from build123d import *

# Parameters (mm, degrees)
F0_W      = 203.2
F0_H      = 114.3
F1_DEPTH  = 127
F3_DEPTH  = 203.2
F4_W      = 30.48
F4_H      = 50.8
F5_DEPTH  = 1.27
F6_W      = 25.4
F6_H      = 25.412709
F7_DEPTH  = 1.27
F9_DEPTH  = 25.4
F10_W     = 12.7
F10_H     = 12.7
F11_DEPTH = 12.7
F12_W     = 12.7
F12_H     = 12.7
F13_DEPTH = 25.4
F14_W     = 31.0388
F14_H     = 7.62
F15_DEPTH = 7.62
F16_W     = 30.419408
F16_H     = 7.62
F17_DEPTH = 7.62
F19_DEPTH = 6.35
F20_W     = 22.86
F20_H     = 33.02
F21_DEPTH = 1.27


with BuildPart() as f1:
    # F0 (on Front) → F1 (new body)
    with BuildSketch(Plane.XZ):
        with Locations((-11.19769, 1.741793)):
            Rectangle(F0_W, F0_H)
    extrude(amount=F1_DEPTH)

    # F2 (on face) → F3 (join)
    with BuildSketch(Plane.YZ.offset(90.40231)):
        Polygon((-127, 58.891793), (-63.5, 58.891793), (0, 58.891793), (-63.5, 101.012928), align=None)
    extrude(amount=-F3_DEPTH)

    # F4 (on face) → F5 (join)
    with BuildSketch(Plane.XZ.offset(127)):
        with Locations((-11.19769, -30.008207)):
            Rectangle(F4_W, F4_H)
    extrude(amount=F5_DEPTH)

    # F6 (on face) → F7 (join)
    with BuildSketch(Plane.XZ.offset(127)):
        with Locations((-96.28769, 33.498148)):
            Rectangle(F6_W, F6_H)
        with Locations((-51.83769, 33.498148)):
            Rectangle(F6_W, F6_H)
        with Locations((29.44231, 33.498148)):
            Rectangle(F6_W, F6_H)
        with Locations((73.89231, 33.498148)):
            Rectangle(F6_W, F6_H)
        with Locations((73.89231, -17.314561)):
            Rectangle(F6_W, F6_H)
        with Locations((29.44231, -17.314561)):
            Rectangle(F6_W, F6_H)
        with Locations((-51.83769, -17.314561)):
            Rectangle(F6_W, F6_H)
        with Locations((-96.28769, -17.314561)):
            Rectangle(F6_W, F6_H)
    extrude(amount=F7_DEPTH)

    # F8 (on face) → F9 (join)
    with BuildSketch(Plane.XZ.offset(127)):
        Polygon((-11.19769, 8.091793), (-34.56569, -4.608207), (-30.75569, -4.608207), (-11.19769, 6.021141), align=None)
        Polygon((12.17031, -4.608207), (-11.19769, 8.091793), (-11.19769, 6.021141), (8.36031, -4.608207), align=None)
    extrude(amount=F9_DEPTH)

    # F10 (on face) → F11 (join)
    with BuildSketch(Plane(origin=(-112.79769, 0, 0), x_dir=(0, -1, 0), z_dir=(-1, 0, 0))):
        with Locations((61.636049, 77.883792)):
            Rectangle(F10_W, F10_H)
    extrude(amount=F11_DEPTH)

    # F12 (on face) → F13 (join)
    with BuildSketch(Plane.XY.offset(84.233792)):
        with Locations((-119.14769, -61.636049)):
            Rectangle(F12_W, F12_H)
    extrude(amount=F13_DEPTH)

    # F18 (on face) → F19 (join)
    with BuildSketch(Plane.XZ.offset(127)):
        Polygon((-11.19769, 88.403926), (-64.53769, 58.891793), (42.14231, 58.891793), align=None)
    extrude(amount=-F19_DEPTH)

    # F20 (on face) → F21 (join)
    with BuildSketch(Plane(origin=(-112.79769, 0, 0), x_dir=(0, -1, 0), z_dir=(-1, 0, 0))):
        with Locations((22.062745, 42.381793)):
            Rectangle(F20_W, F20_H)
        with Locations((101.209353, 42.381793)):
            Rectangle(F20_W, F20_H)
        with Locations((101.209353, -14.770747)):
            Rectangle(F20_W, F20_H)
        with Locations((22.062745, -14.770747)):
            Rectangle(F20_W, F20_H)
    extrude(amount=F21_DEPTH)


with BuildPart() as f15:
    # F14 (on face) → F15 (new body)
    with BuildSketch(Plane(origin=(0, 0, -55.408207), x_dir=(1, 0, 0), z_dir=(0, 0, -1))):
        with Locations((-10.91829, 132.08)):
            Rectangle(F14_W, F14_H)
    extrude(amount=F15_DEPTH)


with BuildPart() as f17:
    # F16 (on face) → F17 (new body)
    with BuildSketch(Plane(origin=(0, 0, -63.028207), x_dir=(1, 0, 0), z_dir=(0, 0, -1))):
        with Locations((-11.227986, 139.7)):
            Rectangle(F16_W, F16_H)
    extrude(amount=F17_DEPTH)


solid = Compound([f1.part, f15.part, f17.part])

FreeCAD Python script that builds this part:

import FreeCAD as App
import Part
import Sketcher

V = App.Vector
Q = App.Units.Quantity


def add_polygon(sketch, points):
    """Adds a closed chain of lines whose ends are joined by coincident constraints."""
    first, n = sketch.GeometryCount, len(points)
    for a, b in zip(points, points[1:] + points[:1]):
        sketch.addGeometry(Part.LineSegment(App.Vector(*a, 0), App.Vector(*b, 0)), False)
    for i in range(n):
        sketch.addConstraint(Sketcher.Constraint("Coincident", first + i, 2, first + (i + 1) % n, 1))

doc = App.newDocument("Part")
body = doc.addObject("PartDesign::Body", "Body")

sketch1 = body.newObject("Sketcher::SketchObject", "Sketch")
sketch1.AttachmentSupport = (doc.getObject("XZ_Plane"), [""])
sketch1.MapMode = "FlatFace"
add_polygon(sketch1, [(-113, 59), (-113, -55), (90, -55), (90, 59)])
sketch1.addConstraint(Sketcher.Constraint("Vertical", 0))
sketch1.addConstraint(Sketcher.Constraint("Horizontal", 1))
sketch1.addConstraint(Sketcher.Constraint("Vertical", 2))
sketch1.addConstraint(Sketcher.Constraint("Horizontal", 3))
sketch1.addConstraint(Sketcher.Constraint("DistanceX", 1, 1, 1, 2, Q("8 in")))
sketch1.addConstraint(Sketcher.Constraint("DistanceY", 0, 2, 0, 1, Q("4.5 in")))
sketch1.addConstraint(Sketcher.Constraint("DistanceX", 0, 2, -1, 1, Q("112.79769 mm")))
sketch1.addConstraint(Sketcher.Constraint("DistanceY", 0, 2, -1, 1, Q("55.408207 mm")))
pad1 = body.newObject("PartDesign::Pad", "Pad")
pad1.Profile = sketch1
pad1.Length = Q("5 in")

sketch2 = body.newObject("Sketcher::SketchObject", "Sketch001")
sketch2.AttachmentSupport = (doc.getObject("YZ_Plane"), [""])
sketch2.MapMode = "FlatFace"
sketch2.AttachmentOffset = App.Placement(V(0, 0, 90.40231), App.Rotation())
add_polygon(sketch2, [(-127, 59), (0, 59), (-64, 101)])
sketch2.addConstraint(Sketcher.Constraint("Horizontal", 0))
sketch2.addConstraint(Sketcher.Constraint("PointOnObject", 0, 2, -2))
sketch2.addConstraint(Sketcher.Constraint("Equal", 1, 2))
sketch2.addConstraint(Sketcher.Constraint("DistanceX", 0, 1, 0, 2, Q("5 in")))
sketch2.addConstraint(Sketcher.Constraint("Distance", 1, Q("3 in")))
sketch2.addConstraint(Sketcher.Constraint("DistanceY", -1, 1, 1, 2, Q("101.012928 mm")))
pad2 = body.newObject("PartDesign::Pad", "Pad001")
pad2.Profile = sketch2
pad2.Length = Q("8 in")
pad2.Reversed = True

sketch3 = body.newObject("Sketcher::SketchObject", "Sketch002")
sketch3.AttachmentSupport = (doc.getObject("XZ_Plane"), [""])
sketch3.MapMode = "FlatFace"
sketch3.AttachmentOffset = App.Placement(V(0, 0, 5 * 25.4), App.Rotation())
add_polygon(sketch3, [(-26, -5), (-26, -55), (4, -55), (4, -5)])
sketch3.addConstraint(Sketcher.Constraint("Vertical", 0))
sketch3.addConstraint(Sketcher.Constraint("Horizontal", 1))
sketch3.addConstraint(Sketcher.Constraint("Vertical", 2))
sketch3.addConstraint(Sketcher.Constraint("Horizontal", 3))
sketch3.addConstraint(Sketcher.Constraint("DistanceY", 0, 2, 0, 1, Q("2 in")))
sketch3.addConstraint(Sketcher.Constraint("DistanceX", 1, 1, 1, 2, Q("1.2 in")))
sketch3.addConstraint(Sketcher.Constraint("DistanceX", 0, 2, -1, 1, Q("26.43769 mm")))
sketch3.addConstraint(Sketcher.Constraint("DistanceY", 0, 2, -1, 1, Q("55.408207 mm")))
pad3 = body.newObject("PartDesign::Pad", "Pad002")
pad3.Profile = sketch3
pad3.Length = Q("0.05 in")

sketch4 = body.newObject("Sketcher::SketchObject", "Sketch003")
sketch4.AttachmentSupport = (doc.getObject("XZ_Plane"), [""])
sketch4.MapMode = "FlatFace"
sketch4.AttachmentOffset = App.Placement(V(0, 0, 5 * 25.4), App.Rotation())
add_polygon(sketch4, [(-109, 46), (-109, 21), (-84, 21), (-84, 46)])
add_polygon(sketch4, [(-65, 46), (-65, 21), (-39, 21), (-39, 46)])
add_polygon(sketch4, [(17, 46), (17, 21), (42, 21), (42, 46)])
add_polygon(sketch4, [(61, 46), (61, 21), (87, 21), (87, 46)])
add_polygon(sketch4, [(61, -5), (61, -30), (87, -30), (87, -5)])
add_polygon(sketch4, [(17, -5), (17, -30), (42, -30), (42, -5)])
add_polygon(sketch4, [(-65, -5), (-65, -30), (-39, -30), (-39, -5)])
add_polygon(sketch4, [(-109, -5), (-109, -30), (-84, -30), (-84, -5)])
sketch4.addConstraint(Sketcher.Constraint("Vertical", 0))
sketch4.addConstraint(Sketcher.Constraint("Horizontal", 1))
sketch4.addConstraint(Sketcher.Constraint("Vertical", 2))
sketch4.addConstraint(Sketcher.Constraint("Horizontal", 3))
sketch4.addConstraint(Sketcher.Constraint("Vertical", 4))
sketch4.addConstraint(Sketcher.Constraint("Horizontal", 5))
sketch4.addConstraint(Sketcher.Constraint("Vertical", 6))
sketch4.addConstraint(Sketcher.Constraint("Horizontal", 7))
sketch4.addConstraint(Sketcher.Constraint("Vertical", 8))
sketch4.addConstraint(Sketcher.Constraint("Horizontal", 9))
sketch4.addConstraint(Sketcher.Constraint("Vertical", 10))
sketch4.addConstraint(Sketcher.Constraint("Horizontal", 11))
sketch4.addConstraint(Sketcher.Constraint("Vertical", 12))
sketch4.addConstraint(Sketcher.Constraint("Horizontal", 13))
sketch4.addConstraint(Sketcher.Constraint("Vertical", 14))
sketch4.addConstraint(Sketcher.Constraint("Horizontal", 15))
sketch4.addConstraint(Sketcher.Constraint("Vertical", 16))
sketch4.addConstraint(Sketcher.Constraint("Horizontal", 17))
sketch4.addConstraint(Sketcher.Constraint("Vertical", 18))
sketch4.addConstraint(Sketcher.Constraint("Horizontal", 19))
sketch4.addConstraint(Sketcher.Constraint("Vertical", 20))
sketch4.addConstraint(Sketcher.Constraint("Horizontal", 21))
sketch4.addConstraint(Sketcher.Constraint("Vertical", 22))
sketch4.addConstraint(Sketcher.Constraint("Horizontal", 23))
sketch4.addConstraint(Sketcher.Constraint("Vertical", 24))
sketch4.addConstraint(Sketcher.Constraint("Horizontal", 25))
sketch4.addConstraint(Sketcher.Constraint("Vertical", 26))
sketch4.addConstraint(Sketcher.Constraint("Horizontal", 27))
sketch4.addConstraint(Sketcher.Constraint("Vertical", 28))
sketch4.addConstraint(Sketcher.Constraint("Horizontal", 29))
sketch4.addConstraint(Sketcher.Constraint("Vertical", 30))
sketch4.addConstraint(Sketcher.Constraint("Horizontal", 31))
sketch4.addConstraint(Sketcher.Constraint("Horizontal", 1, 2, 4, 2))
sketch4.addConstraint(Sketcher.Constraint("Horizontal", 3, 2, 6, 2))
sketch4.addConstraint(Sketcher.Constraint("Horizontal", 5, 2, 8, 2))
sketch4.addConstraint(Sketcher.Constraint("Horizontal", 7, 2, 10, 2))
sketch4.addConstraint(Sketcher.Constraint("Horizontal", 9, 2, 12, 2))
sketch4.addConstraint(Sketcher.Constraint("Horizontal", 11, 2, 14, 2))
sketch4.addConstraint(Sketcher.Constraint("Horizontal", 17, 2, 20, 2))
sketch4.addConstraint(Sketcher.Constraint("Horizontal", 19, 2, 22, 2))
sketch4.addConstraint(Sketcher.Constraint("Horizontal", 21, 2, 24, 2))
sketch4.addConstraint(Sketcher.Constraint("Horizontal", 23, 2, 26, 2))
sketch4.addConstraint(Sketcher.Constraint("Horizontal", 25, 2, 28, 2))
sketch4.addConstraint(Sketcher.Constraint("Horizontal", 27, 2, 30, 2))
sketch4.addConstraint(Sketcher.Constraint("Vertical", 15, 2, 16, 2))
sketch4.addConstraint(Sketcher.Constraint("Vertical", 14, 2, 17, 2))
sketch4.addConstraint(Sketcher.Constraint("Vertical", 11, 2, 20, 2))
sketch4.addConstraint(Sketcher.Constraint("Vertical", 10, 2, 21, 2))
sketch4.addConstraint(Sketcher.Constraint("Vertical", 7, 2, 24, 2))
sketch4.addConstraint(Sketcher.Constraint("Vertical", 6, 2, 25, 2))
sketch4.addConstraint(Sketcher.Constraint("Vertical", 3, 2, 28, 2))
sketch4.addConstraint(Sketcher.Constraint("Vertical", 2, 2, 29, 2))
sketch4.addConstraint(Sketcher.Constraint("Equal", 3, 5))
sketch4.addConstraint(Sketcher.Constraint("Equal", 7, 9))
sketch4.addConstraint(Sketcher.Constraint("Equal", 11, 13))
sketch4.addConstraint(Sketcher.Constraint("Equal", 14, 16))
sketch4.addConstraint(Sketcher.Constraint("DistanceX", 1, 1, 1, 2, Q("1 in")))
sketch4.addConstraint(Sketcher.Constraint("DistanceY", 18, 2, 13, 2, Q("1 in")))
sketch4.addConstraint(Sketcher.Constraint("DistanceX", 5, 2, 8, 2, Q("2.2 in")))
sketch4.addConstraint(Sketcher.Constraint("DistanceX", 1, 2, 4, 2, Q("0.75 in")))
sketch4.addConstraint(Sketcher.Constraint("DistanceX", 9, 2, 12, 2, Q("0.75 in")))
sketch4.addConstraint(Sketcher.Constraint("DistanceY", 0, 2, 0, 1, Q("25.412709 mm")))
sketch4.addConstraint(Sketcher.Constraint("DistanceX", 0, 2, -1, 1, Q("108.98769 mm")))
sketch4.addConstraint(Sketcher.Constraint("DistanceY", -1, 1, 0, 2, Q("20.791794 mm")))
pad4 = body.newObject("PartDesign::Pad", "Pad003")
pad4.Profile = sketch4
pad4.Length = Q("0.05 in")

sketch5 = body.newObject("Sketcher::SketchObject", "Sketch004")
sketch5.AttachmentSupport = (doc.getObject("XZ_Plane"), [""])
sketch5.MapMode = "FlatFace"
sketch5.AttachmentOffset = App.Placement(V(0, 0, 5 * 25.4), App.Rotation())
add_polygon(sketch5, [(-11.2, 8.1), (-34.6, -4.6), (-30.8, -4.6), (-11.2, 6), (8.4, -4.6), (12.2, -4.6)])
sketch5.addConstraint(Sketcher.Constraint("Horizontal", 1))
sketch5.addConstraint(Sketcher.Constraint("Horizontal", 4))
sketch5.addConstraint(Sketcher.Constraint("Parallel", 0, 2))
sketch5.addConstraint(Sketcher.Constraint("Parallel", 3, 5))
sketch5.addConstraint(Sketcher.Constraint("Horizontal", 1, 2, 3, 2))
sketch5.addConstraint(Sketcher.Constraint("Vertical", 2, 2, 5, 2))
sketch5.addConstraint(Sketcher.Constraint("Equal", 1, 4))
sketch5.addConstraint(Sketcher.Constraint("DistanceX", 1, 1, 1, 2, Q("0.15 in")))
sketch5.addConstraint(Sketcher.Constraint("DistanceY", 1, 2, 5, 2, Q("0.5 in")))
sketch5.addConstraint(Sketcher.Constraint("DistanceX", 1, 2, 2, 2, Q("0.77 in")))
sketch5.addConstraint(Sketcher.Constraint("DistanceX", 0, 2, -1, 1, Q("34.56569 mm")))
sketch5.addConstraint(Sketcher.Constraint("DistanceY", -1, 1, 2, 2, Q("6.021141 mm")))
pad5 = body.newObject("PartDesign::Pad", "Pad004")
pad5.Profile = sketch5
pad5.Length = Q("1 in")

sketch6 = body.newObject("Sketcher::SketchObject", "Sketch005")
sketch6.AttachmentSupport = (doc.getObject("YZ_Plane"), [""])
sketch6.MapMode = "FlatFace"
sketch6.AttachmentOffset = App.Placement(V(0, 0, -112.79769), App.Rotation())
add_polygon(sketch6, [(-55, 84), (-55, 72), (-68, 72), (-68, 84)])
sketch6.addConstraint(Sketcher.Constraint("Vertical", 0))
sketch6.addConstraint(Sketcher.Constraint("Horizontal", 1))
sketch6.addConstraint(Sketcher.Constraint("Vertical", 2))
sketch6.addConstraint(Sketcher.Constraint("Horizontal", 3))
sketch6.addConstraint(Sketcher.Constraint("Equal", 3, 0))
sketch6.addConstraint(Sketcher.Constraint("DistanceX", 1, 2, 1, 1, Q("0.5 in")))
sketch6.addConstraint(Sketcher.Constraint("DistanceX", 0, 2, -1, 1, Q("55.286049 mm")))
sketch6.addConstraint(Sketcher.Constraint("DistanceY", -1, 1, 2, 2, Q("84.233792 mm")))
pad6 = body.newObject("PartDesign::Pad", "Pad005")
pad6.Profile = sketch6
pad6.Length = Q("0.5 in")
pad6.Reversed = True

sketch7 = body.newObject("Sketcher::SketchObject", "Sketch006")
sketch7.AttachmentSupport = (doc.getObject("XY_Plane"), [""])
sketch7.MapMode = "FlatFace"
sketch7.AttachmentOffset = App.Placement(V(0, 0, 84.233792), App.Rotation())
add_polygon(sketch7, [(-125, -55), (-125, -68), (-113, -68), (-113, -55)])
sketch7.addConstraint(Sketcher.Constraint("Vertical", 0))
sketch7.addConstraint(Sketcher.Constraint("Horizontal", 1))
sketch7.addConstraint(Sketcher.Constraint("Vertical", 2))
sketch7.addConstraint(Sketcher.Constraint("Horizontal", 3))
sketch7.addConstraint(Sketcher.Constraint("Equal", 3, 0))
sketch7.addConstraint(Sketcher.Constraint("DistanceX", 1, 1, 1, 2, Q("0.5 in")))
sketch7.addConstraint(Sketcher.Constraint("DistanceX", 0, 2, -1, 1, Q("125.49769 mm")))
sketch7.addConstraint(Sketcher.Constraint("DistanceY", 0, 2, -1, 1, Q("67.986049 mm")))
pad7 = body.newObject("PartDesign::Pad", "Pad006")
pad7.Profile = sketch7
pad7.Length = Q("1 in")

sketch8 = body.newObject("Sketcher::SketchObject", "Sketch007")
sketch8.AttachmentSupport = (doc.getObject("XZ_Plane"), [""])
sketch8.MapMode = "FlatFace"
sketch8.AttachmentOffset = App.Placement(V(0, 0, 5 * 25.4), App.Rotation())
add_polygon(sketch8, [(-11, 88), (-65, 59), (42, 59)])
sketch8.addConstraint(Sketcher.Constraint("Horizontal", 1))
sketch8.addConstraint(Sketcher.Constraint("Equal", 0, 2))
sketch8.addConstraint(Sketcher.Constraint("DistanceX", 1, 1, 1, 2, Q("4.2 in")))
sketch8.addConstraint(Sketcher.Constraint("Distance", 0, Q("2.4 in")))
sketch8.addConstraint(Sketcher.Constraint("DistanceX", 0, 2, -1, 1, Q("64.53769 mm")))
sketch8.addConstraint(Sketcher.Constraint("DistanceY", -1, 1, 0, 2, Q("58.891793 mm")))
pad8 = body.newObject("PartDesign::Pad", "Pad007")
pad8.Profile = sketch8
pad8.Length = Q("0.25 in")
pad8.Reversed = True

sketch9 = body.newObject("Sketcher::SketchObject", "Sketch008")
sketch9.AttachmentSupport = (doc.getObject("YZ_Plane"), [""])
sketch9.MapMode = "FlatFace"
sketch9.AttachmentOffset = App.Placement(V(0, 0, -112.79769), App.Rotation())
add_polygon(sketch9, [(-11, 59), (-11, 26), (-33, 26), (-33, 59)])
add_polygon(sketch9, [(-90, 59), (-90, 26), (-113, 26), (-113, 59)])
add_polygon(sketch9, [(-90, 2), (-90, -31), (-113, -31), (-113, 2)])
add_polygon(sketch9, [(-11, 2), (-11, -31), (-33, -31), (-33, 2)])
sketch9.addConstraint(Sketcher.Constraint("Vertical", 0))
sketch9.addConstraint(Sketcher.Constraint("Horizontal", 1))
sketch9.addConstraint(Sketcher.Constraint("Vertical", 2))
sketch9.addConstraint(Sketcher.Constraint("Horizontal", 3))
sketch9.addConstraint(Sketcher.Constraint("Vertical", 4))
sketch9.addConstraint(Sketcher.Constraint("Horizontal", 5))
sketch9.addConstraint(Sketcher.Constraint("Vertical", 6))
sketch9.addConstraint(Sketcher.Constraint("Horizontal", 7))
sketch9.addConstraint(Sketcher.Constraint("Vertical", 8))
sketch9.addConstraint(Sketcher.Constraint("Horizontal", 9))
sketch9.addConstraint(Sketcher.Constraint("Vertical", 10))
sketch9.addConstraint(Sketcher.Constraint("Horizontal", 11))
sketch9.addConstraint(Sketcher.Constraint("Vertical", 12))
sketch9.addConstraint(Sketcher.Constraint("Horizontal", 13))
sketch9.addConstraint(Sketcher.Constraint("Vertical", 14))
sketch9.addConstraint(Sketcher.Constraint("Horizontal", 15))
sketch9.addConstraint(Sketcher.Constraint("Horizontal", 1, 2, 4, 2))
sketch9.addConstraint(Sketcher.Constraint("Horizontal", 3, 2, 6, 2))
sketch9.addConstraint(Sketcher.Constraint("Horizontal", 9, 2, 12, 2))
sketch9.addConstraint(Sketcher.Constraint("Horizontal", 11, 2, 14, 2))
sketch9.addConstraint(Sketcher.Constraint("Vertical", 7, 2, 8, 2))
sketch9.addConstraint(Sketcher.Constraint("Vertical", 6, 2, 9, 2))
sketch9.addConstraint(Sketcher.Constraint("Vertical", 3, 2, 12, 2))
sketch9.addConstraint(Sketcher.Constraint("Vertical", 2, 2, 13, 2))
sketch9.addConstraint(Sketcher.Constraint("Equal", 3, 5))
sketch9.addConstraint(Sketcher.Constraint("Equal", 6, 8))
sketch9.addConstraint(Sketcher.Constraint("DistanceX", 1, 2, 1, 1, Q("0.9 in")))
sketch9.addConstraint(Sketcher.Constraint("DistanceY", 0, 2, 0, 1, Q("1.3 in")))
sketch9.addConstraint(Sketcher.Constraint("DistanceY", 8, 2, 4, 2, Q("2.2501 in")))
sketch9.addConstraint(Sketcher.Constraint("DistanceX", 4, 2, 0, 2, Q("79.146608 mm")))
sketch9.addConstraint(Sketcher.Constraint("DistanceX", 0, 2, -1, 1, Q("10.632745 mm")))
sketch9.addConstraint(Sketcher.Constraint("DistanceY", -1, 1, 0, 2, Q("25.871793 mm")))
pad9 = body.newObject("PartDesign::Pad", "Pad008")
pad9.Profile = sketch9
pad9.Length = Q("0.05 in")
pad9.Reversed = True
body2 = doc.addObject("PartDesign::Body", "Body001")

sketch10 = body2.newObject("Sketcher::SketchObject", "Sketch009")
sketch10.AttachmentSupport = (doc.getObject("XY_Plane001"), [""])
sketch10.MapMode = "FlatFace"
sketch10.AttachmentOffset = App.Placement(V(0, 0, -55.408207), App.Rotation())
add_polygon(sketch10, [(-26, -136), (-26, -128), (5, -128), (5, -136)])
sketch10.addConstraint(Sketcher.Constraint("Vertical", 0))
sketch10.addConstraint(Sketcher.Constraint("Horizontal", 1))
sketch10.addConstraint(Sketcher.Constraint("Vertical", 2))
sketch10.addConstraint(Sketcher.Constraint("Horizontal", 3))
sketch10.addConstraint(Sketcher.Constraint("DistanceY", 0, 1, 0, 2, Q("0.3 in")))
sketch10.addConstraint(Sketcher.Constraint("DistanceX", 1, 1, 1, 2, Q("1.222 in")))
sketch10.addConstraint(Sketcher.Constraint("DistanceY", 0, 2, -1, 1, Q("5.05 in")))
sketch10.addConstraint(Sketcher.Constraint("DistanceX", 0, 2, -1, 1, Q("26.43769 mm")))
pad10 = body2.newObject("PartDesign::Pad", "Pad009")
pad10.Profile = sketch10
pad10.Length = Q("0.3 in")
pad10.Reversed = True
body3 = doc.addObject("PartDesign::Body", "Body002")

sketch11 = body3.newObject("Sketcher::SketchObject", "Sketch010")
sketch11.AttachmentSupport = (doc.getObject("XY_Plane002"), [""])
sketch11.MapMode = "FlatFace"
sketch11.AttachmentOffset = App.Placement(V(0, 0, -63.028207), App.Rotation())
add_polygon(sketch11, [(-26, -144), (-26, -136), (4, -136), (4, -144)])
sketch11.addConstraint(Sketcher.Constraint("Vertical", 0))
sketch11.addConstraint(Sketcher.Constraint("Horizontal", 1))
sketch11.addConstraint(Sketcher.Constraint("Vertical", 2))
sketch11.addConstraint(Sketcher.Constraint("Horizontal", 3))
sketch11.addConstraint(Sketcher.Constraint("DistanceY", 0, 1, 0, 2, Q("0.3 in")))
sketch11.addConstraint(Sketcher.Constraint("DistanceY", 0, 2, -1, 1, Q("5.35 in")))
sketch11.addConstraint(Sketcher.Constraint("DistanceX", 1, 1, 1, 2, Q("30.419408 mm")))
sketch11.addConstraint(Sketcher.Constraint("DistanceX", 0, 2, -1, 1, Q("26.43769 mm")))
pad11 = body3.newObject("PartDesign::Pad", "Pad010")
pad11.Profile = sketch11
pad11.Length = Q("0.3 in")
pad11.Reversed = True

doc.recompute()
